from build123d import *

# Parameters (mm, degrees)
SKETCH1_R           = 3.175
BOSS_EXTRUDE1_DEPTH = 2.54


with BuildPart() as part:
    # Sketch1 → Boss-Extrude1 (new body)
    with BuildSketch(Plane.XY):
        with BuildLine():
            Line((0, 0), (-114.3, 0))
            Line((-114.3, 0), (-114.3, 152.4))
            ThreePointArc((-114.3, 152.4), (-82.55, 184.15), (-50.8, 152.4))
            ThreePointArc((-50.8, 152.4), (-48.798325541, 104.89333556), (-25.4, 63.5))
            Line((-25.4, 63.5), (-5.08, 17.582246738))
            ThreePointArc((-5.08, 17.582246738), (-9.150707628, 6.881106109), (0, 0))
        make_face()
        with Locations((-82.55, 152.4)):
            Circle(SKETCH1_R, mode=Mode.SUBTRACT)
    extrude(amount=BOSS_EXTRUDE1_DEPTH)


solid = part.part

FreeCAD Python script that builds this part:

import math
import FreeCAD as App
import Part
import Sketcher

V = App.Vector
Q = App.Units.Quantity

doc = App.newDocument("Part")
body = doc.addObject("PartDesign::Body", "Body")

# Sketch on XY plane
sketch1 = body.newObject("Sketcher::SketchObject", "Sketch")
sketch1.AttachmentSupport = (doc.getObject("XY_Plane"), [""])
sketch1.MapMode = "FlatFace"
sketch1.addGeometry([
    Part.LineSegment(V(-114.3, 0, 0), V(0, 0, 0)),  # 0
    Part.ArcOfCircle(Part.Circle(V(0, 9.525, 0), V(0, 0, 1), 9.525), math.radians(122.230953), math.radians(270)),  # 1
    Part.LineSegment(V(-5.08, 17.582247, 0), V(-25.4, 63.5, 0)),  # 2
    Part.ArcOfCircle(Part.Circle(V(48.892508, 132.805002, 0), V(0, 0, 1), 101.6), math.radians(168.88002), math.radians(223.010772)),  # 3
    Part.ArcOfCircle(Part.Circle(V(-82.55, 152.4, 0), V(0, 0, 1), 31.75), math.radians(0), math.radians(180)),  # 4
    Part.LineSegment(V(-114.3, 152.4, 0), V(-114.3, 0, 0)),  # 5
    Part.Circle(V(-82.55, 152.4, 0), V(0, 0, 1), 3.175),  # 6
], False)
sketch1.addConstraint([
    Sketcher.Constraint("Tangent", 0, 2, 1, 2),
    Sketcher.Constraint("Coincident", 1, 1, 2, 1),
    Sketcher.Constraint("Coincident", 2, 2, 3, 2),
    Sketcher.Constraint("Coincident", 3, 1, 4, 1),
    Sketcher.Constraint("Tangent", 4, 2, 5, 1),
    Sketcher.Constraint("Coincident", 5, 2, 0, 1),
    Sketcher.Constraint("Horizontal", 0),
    Sketcher.Constraint("Vertical", 5),
    Sketcher.Constraint("Coincident", 0, 2, -1, 1),
    Sketcher.Constraint("Coincident", 6, 3, 4, 3),
    Sketcher.Constraint("Horizontal", 6, 3, 3, 1),
    Sketcher.Constraint("Radius", 3, Q("4 in")),
    Sketcher.Constraint("Diameter", 6, Q("0.25 in")),
    Sketcher.Constraint("DistanceY", 5, 2, 5, 1, Q("6 in")),
    Sketcher.Constraint("Radius", 4, Q("1.25 in")),
    Sketcher.Constraint("DistanceX", 0, 1, 0, 2, Q("4.5 in")),
    Sketcher.Constraint("DistanceX", 2, 2, -1, 1, Q("1 in")),
    Sketcher.Constraint("Radius", 1, Q("0.375 in")),
    Sketcher.Constraint("DistanceX", 1, 1, -1, 1, Q("0.2 in")),
    Sketcher.Constraint("DistanceY", -1, 1, 2, 2, Q("2.5 in")),
])
pad1 = body.newObject("PartDesign::Pad", "Pad")
pad1.Profile = sketch1
pad1.Length = Q("0.1 in")

doc.recompute()
